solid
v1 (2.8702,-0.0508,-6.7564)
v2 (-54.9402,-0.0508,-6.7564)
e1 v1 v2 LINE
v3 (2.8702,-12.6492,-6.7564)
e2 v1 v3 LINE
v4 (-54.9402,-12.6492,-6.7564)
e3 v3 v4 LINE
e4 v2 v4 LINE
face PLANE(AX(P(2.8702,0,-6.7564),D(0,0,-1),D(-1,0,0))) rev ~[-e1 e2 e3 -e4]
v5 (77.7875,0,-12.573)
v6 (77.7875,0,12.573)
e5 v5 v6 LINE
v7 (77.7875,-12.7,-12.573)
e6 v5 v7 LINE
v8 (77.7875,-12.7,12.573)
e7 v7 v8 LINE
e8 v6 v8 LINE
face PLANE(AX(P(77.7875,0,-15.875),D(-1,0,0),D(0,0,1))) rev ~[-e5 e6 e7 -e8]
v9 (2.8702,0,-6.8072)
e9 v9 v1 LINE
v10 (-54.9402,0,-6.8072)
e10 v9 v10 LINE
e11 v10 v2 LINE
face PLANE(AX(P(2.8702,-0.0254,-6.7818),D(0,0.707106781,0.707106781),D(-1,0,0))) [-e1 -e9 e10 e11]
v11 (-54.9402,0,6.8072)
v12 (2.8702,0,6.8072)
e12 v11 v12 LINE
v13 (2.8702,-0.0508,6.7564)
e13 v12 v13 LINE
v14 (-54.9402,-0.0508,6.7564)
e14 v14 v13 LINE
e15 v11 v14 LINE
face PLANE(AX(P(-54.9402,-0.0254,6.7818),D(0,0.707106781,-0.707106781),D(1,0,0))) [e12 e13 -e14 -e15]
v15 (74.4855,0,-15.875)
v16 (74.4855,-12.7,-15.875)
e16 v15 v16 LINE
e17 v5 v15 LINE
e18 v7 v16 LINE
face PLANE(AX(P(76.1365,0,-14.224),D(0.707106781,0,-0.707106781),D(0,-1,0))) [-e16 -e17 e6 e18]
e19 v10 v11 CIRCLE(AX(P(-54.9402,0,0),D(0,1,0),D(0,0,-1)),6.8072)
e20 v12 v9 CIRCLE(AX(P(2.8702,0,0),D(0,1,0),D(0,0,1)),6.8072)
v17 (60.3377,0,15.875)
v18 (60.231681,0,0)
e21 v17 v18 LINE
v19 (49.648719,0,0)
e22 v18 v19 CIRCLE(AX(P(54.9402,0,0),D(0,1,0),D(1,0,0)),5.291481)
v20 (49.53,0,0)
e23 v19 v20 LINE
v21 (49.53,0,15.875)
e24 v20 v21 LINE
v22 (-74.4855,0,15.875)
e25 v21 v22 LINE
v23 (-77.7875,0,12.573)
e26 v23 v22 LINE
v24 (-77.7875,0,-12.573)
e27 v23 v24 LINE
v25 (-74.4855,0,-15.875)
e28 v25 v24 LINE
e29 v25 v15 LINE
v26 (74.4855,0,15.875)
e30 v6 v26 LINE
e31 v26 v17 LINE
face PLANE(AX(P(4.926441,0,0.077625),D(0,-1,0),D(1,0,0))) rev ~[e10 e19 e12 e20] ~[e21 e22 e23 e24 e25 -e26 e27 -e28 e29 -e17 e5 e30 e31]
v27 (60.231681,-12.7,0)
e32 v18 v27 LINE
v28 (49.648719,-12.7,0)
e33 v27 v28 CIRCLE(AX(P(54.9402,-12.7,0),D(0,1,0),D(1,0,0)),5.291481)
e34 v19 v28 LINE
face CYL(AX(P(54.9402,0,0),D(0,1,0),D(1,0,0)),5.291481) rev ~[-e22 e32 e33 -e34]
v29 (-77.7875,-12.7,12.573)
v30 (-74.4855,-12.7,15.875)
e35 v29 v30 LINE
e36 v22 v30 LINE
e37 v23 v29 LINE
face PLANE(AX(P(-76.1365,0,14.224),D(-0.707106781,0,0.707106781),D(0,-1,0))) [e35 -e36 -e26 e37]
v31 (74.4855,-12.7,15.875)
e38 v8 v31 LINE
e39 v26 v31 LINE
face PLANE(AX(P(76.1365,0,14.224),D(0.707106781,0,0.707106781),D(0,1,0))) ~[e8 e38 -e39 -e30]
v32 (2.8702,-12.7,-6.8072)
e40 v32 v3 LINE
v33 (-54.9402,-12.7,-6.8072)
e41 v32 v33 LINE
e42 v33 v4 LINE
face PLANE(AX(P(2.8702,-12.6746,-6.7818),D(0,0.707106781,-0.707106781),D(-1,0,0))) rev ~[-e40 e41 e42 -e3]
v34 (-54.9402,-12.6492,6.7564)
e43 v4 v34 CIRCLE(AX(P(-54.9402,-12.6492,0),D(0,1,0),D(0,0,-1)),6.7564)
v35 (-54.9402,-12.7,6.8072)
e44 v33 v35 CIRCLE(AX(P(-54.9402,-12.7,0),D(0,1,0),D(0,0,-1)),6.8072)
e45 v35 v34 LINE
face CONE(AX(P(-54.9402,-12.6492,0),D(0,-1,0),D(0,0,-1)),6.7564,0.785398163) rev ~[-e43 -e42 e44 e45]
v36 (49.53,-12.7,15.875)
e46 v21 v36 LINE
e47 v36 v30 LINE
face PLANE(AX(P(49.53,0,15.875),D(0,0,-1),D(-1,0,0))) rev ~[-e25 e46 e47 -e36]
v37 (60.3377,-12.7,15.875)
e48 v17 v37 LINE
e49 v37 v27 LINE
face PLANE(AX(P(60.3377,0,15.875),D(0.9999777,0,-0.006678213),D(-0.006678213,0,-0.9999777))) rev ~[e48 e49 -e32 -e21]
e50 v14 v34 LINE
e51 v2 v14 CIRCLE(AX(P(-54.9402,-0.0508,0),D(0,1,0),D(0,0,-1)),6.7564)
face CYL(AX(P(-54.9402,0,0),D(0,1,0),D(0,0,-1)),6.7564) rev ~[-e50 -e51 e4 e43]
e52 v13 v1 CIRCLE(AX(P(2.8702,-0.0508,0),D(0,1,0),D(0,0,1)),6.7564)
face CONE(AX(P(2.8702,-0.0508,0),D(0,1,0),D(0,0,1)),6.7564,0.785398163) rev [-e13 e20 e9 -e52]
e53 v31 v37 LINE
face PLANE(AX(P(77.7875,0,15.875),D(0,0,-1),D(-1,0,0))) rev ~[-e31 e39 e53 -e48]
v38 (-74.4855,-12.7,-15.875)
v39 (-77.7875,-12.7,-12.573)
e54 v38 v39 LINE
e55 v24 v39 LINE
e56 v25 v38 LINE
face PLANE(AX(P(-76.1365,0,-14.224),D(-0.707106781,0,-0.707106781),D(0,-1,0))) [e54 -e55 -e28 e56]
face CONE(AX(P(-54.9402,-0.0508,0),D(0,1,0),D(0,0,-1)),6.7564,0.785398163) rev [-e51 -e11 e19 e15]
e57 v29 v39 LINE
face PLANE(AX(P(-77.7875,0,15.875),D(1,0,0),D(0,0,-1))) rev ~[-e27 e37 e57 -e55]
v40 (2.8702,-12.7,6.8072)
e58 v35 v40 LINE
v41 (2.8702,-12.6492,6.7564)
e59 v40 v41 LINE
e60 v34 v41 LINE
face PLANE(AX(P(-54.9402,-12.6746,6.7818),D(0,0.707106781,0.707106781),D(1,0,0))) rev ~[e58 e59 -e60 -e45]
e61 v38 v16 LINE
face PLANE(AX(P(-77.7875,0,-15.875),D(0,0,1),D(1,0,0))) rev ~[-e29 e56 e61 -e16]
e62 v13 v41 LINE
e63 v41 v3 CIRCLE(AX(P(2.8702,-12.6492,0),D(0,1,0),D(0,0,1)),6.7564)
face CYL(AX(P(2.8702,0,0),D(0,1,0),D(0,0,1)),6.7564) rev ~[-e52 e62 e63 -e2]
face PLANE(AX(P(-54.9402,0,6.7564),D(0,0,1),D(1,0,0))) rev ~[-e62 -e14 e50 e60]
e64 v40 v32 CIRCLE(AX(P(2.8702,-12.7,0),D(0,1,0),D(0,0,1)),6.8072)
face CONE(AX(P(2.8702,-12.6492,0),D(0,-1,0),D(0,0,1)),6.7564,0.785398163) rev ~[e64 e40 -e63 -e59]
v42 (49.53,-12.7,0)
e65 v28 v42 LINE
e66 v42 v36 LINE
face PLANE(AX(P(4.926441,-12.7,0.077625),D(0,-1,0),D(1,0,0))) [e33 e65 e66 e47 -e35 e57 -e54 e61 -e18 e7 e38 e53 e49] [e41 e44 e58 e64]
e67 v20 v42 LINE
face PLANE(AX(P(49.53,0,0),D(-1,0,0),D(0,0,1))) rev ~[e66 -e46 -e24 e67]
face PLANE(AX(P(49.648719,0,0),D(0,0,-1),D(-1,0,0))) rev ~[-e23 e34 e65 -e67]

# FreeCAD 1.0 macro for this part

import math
import FreeCAD as App
import Part
import Sketcher

V = App.Vector
Q = App.Units.Quantity


def edges_at(feature, points):
    """Names of the edges that pass closest to the given points."""
    edges = feature.Shape.Edges
    near = lambda p: min(range(len(edges)), key=lambda i: edges[i].distToShape(Part.Vertex(*p))[0])
    return sorted({f"Edge{near(p) + 1}" for p in points})

doc = App.newDocument("Part")
body = doc.addObject("PartDesign::Body", "Body")

# Sketch on XZ plane
sketch1 = body.newObject("Sketcher::SketchObject", "Sketch")
sketch1.AttachmentSupport = (doc.getObject("XZ_Plane"), [""])
sketch1.MapMode = "FlatFace"
sketch1.addGeometry([
    Part.LineSegment(V(77.79, -15.88, 0), V(77.79, 15.88, 0)),  # 0
    Part.LineSegment(V(77.79, 15.88, 0), V(60.34, 15.88, 0)),  # 1
    Part.LineSegment(V(60.34, 15.88, 0), V(60.23, 0, 0)),  # 2
    Part.ArcOfCircle(Part.Circle(V(54.94, 0, 0), V(0, 0, 1), 5.29), math.radians(180), math.radians(360)),  # 3
    Part.LineSegment(V(49.65, 0, 0), V(49.53, 0, 0)),  # 4
    Part.LineSegment(V(49.53, 0, 0), V(49.53, 15.88, 0)),  # 5
    Part.LineSegment(V(49.53, 15.88, 0), V(-77.79, 15.88, 0)),  # 6
    Part.LineSegment(V(-77.79, 15.88, 0), V(-77.79, -15.88, 0)),  # 7
    Part.LineSegment(V(-77.79, -15.88, 0), V(77.79, -15.88, 0)),  # 8
    Part.ArcOfCircle(Part.Circle(V(2.87, 0, 0), V(0, 0, 1), 6.76), math.radians(-90), math.radians(90)),  # 9
    Part.LineSegment(V(2.87, -6.76, 0), V(-54.94, -6.76, 0)),  # 10
    Part.ArcOfCircle(Part.Circle(V(-54.94, 0, 0), V(0, 0, 1), 6.76), math.radians(90), math.radians(270)),  # 11
    Part.LineSegment(V(-54.94, 6.76, 0), V(2.87, 6.76, 0)),  # 12
], False)
sketch1.addConstraint([
    Sketcher.Constraint("Coincident", 0, 2, 1, 1),
    Sketcher.Constraint("Coincident", 1, 2, 2, 1),
    Sketcher.Constraint("Coincident", 2, 2, 3, 2),
    Sketcher.Constraint("Coincident", 3, 1, 4, 1),
    Sketcher.Constraint("Coincident", 4, 2, 5, 1),
    Sketcher.Constraint("Coincident", 5, 2, 6, 1),
    Sketcher.Constraint("Coincident", 6, 2, 7, 1),
    Sketcher.Constraint("Coincident", 7, 2, 8, 1),
    Sketcher.Constraint("Coincident", 8, 2, 0, 1),
    Sketcher.Constraint("Tangent", 9, 1, 10, 1),
    Sketcher.Constraint("Tangent", 10, 2, 11, 2),
    Sketcher.Constraint("Tangent", 11, 1, 12, 1),
    Sketcher.Constraint("Tangent", 12, 2, 9, 2),
    Sketcher.Constraint("Vertical", 0),
    Sketcher.Constraint("Horizontal", 1),
    Sketcher.Constraint("Horizontal", 4),
    Sketcher.Constraint("Vertical", 5),
    Sketcher.Constraint("Horizontal", 6),
    Sketcher.Constraint("Vertical", 7),
    Sketcher.Constraint("Horizontal", 8),
    Sketcher.Constraint("Horizontal", 10),
    Sketcher.Constraint("Horizontal", 12),
    Sketcher.Constraint("Symmetric", 3, 3, 11, 3, -1, 1),
    Sketcher.Constraint("Symmetric", 0, 2, 7, 2, -1, 1),
    Sketcher.Constraint("PointOnObject", 3, 3, -1),
    Sketcher.Constraint("PointOnObject", 2, 2, -1),
    Sketcher.Constraint("PointOnObject", 3, 1, -1),
    Sketcher.Constraint("Horizontal", 1, 2, 5, 2),
    Sketcher.Constraint("Radius", 9, Q("0.266 in")),
    Sketcher.Constraint("DistanceY", 0, 1, 0, 2, Q("1.25 in")),
    Sketcher.Constraint("DistanceX", 1, 2, 1, 1, Q("0.687 in")),
    Sketcher.Constraint("DistanceX", 8, 1, 8, 2, Q("6.125 in")),
    Sketcher.Constraint("DistanceX", 10, 2, 10, 1, Q("2.276 in")),
    Sketcher.Constraint("DistanceX", -1, 1, 4, 2, Q("1.95 in")),
    Sketcher.Constraint("DistanceX", 9, 3, 3, 3, Q("2.05 in")),
    Sketcher.Constraint("Radius", 3, 5.291481),
])
pad1 = body.newObject("PartDesign::Pad", "Pad")
pad1.Profile = sketch1
pad1.Length = Q("0.5 in")
doc.recompute()

chamfer = body.newObject("PartDesign::Chamfer", "Chamfer")
chamfer.Base = (pad1, edges_at(pad1, [
    (-77.787, -6.35, 15.875),
    (-77.787, -6.35, -15.875),
    (77.787, -6.35, -15.875),
    (77.787, -6.35, 15.875),
]))
chamfer.Size = Q("0.13 in")
doc.recompute()

chamfer2 = body.newObject("PartDesign::Chamfer", "Chamfer001")
chamfer2.Base = (chamfer, edges_at(chamfer, [
    (-26.035, -12.7, 6.756),
    (-61.697, -12.7, 0),
    (-26.035, -12.7, -6.756),
    (9.627, -12.7, 0),
    (-61.697, 0, 0),
    (-26.035, 0, -6.756),
    (-26.035, 0, 6.756),
    (9.627, 0, 0),
]))
chamfer2.Size = Q("0.002 in")

doc.recompute()
